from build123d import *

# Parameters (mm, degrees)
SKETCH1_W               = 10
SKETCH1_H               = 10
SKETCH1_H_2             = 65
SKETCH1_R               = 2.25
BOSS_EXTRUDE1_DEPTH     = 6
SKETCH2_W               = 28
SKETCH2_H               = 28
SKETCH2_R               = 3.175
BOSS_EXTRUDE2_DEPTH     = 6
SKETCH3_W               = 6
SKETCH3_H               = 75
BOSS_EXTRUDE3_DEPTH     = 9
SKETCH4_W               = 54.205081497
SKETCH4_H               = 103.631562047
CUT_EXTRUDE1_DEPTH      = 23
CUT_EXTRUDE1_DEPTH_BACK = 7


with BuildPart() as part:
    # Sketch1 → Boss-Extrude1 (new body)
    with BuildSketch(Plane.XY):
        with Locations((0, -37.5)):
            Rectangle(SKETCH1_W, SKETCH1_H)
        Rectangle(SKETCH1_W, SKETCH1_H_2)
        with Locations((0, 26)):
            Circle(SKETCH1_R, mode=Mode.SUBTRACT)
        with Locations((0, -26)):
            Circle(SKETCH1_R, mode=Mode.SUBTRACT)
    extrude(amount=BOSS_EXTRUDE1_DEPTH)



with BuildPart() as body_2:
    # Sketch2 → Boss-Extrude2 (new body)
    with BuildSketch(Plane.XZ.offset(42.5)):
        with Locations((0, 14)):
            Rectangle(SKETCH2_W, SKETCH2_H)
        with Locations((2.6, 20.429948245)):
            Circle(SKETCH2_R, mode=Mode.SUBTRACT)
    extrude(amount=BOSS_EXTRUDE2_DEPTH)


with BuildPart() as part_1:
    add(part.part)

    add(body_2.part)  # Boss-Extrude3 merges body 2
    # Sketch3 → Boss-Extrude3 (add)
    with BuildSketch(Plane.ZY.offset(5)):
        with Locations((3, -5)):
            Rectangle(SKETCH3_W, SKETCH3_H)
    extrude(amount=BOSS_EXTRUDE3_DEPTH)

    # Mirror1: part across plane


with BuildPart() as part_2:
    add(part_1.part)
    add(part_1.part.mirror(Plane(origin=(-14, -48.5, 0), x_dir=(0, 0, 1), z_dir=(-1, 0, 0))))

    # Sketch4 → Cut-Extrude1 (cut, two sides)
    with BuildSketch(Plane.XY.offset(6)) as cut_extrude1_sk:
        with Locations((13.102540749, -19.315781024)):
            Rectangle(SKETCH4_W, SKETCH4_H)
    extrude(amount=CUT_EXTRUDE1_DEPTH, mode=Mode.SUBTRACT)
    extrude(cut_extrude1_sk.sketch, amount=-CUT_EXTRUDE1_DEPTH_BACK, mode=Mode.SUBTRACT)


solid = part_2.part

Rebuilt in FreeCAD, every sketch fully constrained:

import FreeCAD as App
import Part
import Sketcher

doc = App.newDocument("Part")
body = doc.addObject("PartDesign::Body", "Body")

sketch1 = body.newObject("Sketcher::SketchObject", "Sketch")
sketch1.AttachmentSupport = (doc.getObject("XY_Plane"), [""])
sketch1.MapMode = "FlatFace"
sketch1.addGeometry(Part.LineSegment(App.Vector(-5, -42.5, 0), App.Vector(5, -42.5, 0)), False)
sketch1.addGeometry(Part.LineSegment(App.Vector(5, -42.5, 0), App.Vector(5, 32.5, 0)), False)
sketch1.addGeometry(Part.LineSegment(App.Vector(5, 32.5, 0), App.Vector(-5, 32.5, 0)), False)
sketch1.addGeometry(Part.LineSegment(App.Vector(-5, 32.5, 0), App.Vector(-5, -42.5, 0)), False)
sketch1.addGeometry(Part.Circle(App.Vector(0, -26, 0), App.Vector(0, 0, 1), 2.2), False)
sketch1.addGeometry(Part.Circle(App.Vector(0, 26, 0), App.Vector(0, 0, 1), 2.2), False)
sketch1.addConstraint(Sketcher.Constraint("Coincident", 0, 2, 1, 1))
sketch1.addConstraint(Sketcher.Constraint("Coincident", 1, 2, 2, 1))
sketch1.addConstraint(Sketcher.Constraint("Coincident", 2, 2, 3, 1))
sketch1.addConstraint(Sketcher.Constraint("Coincident", 3, 2, 0, 1))
sketch1.addConstraint(Sketcher.Constraint("Horizontal", 0))
sketch1.addConstraint(Sketcher.Constraint("Vertical", 1))
sketch1.addConstraint(Sketcher.Constraint("Horizontal", 2))
sketch1.addConstraint(Sketcher.Constraint("Vertical", 3))
sketch1.addConstraint(Sketcher.Constraint("Equal", 4, 5))
sketch1.addConstraint(Sketcher.Constraint("Symmetric", 4, 3, 5, 3, -1, 1))
sketch1.addConstraint(Sketcher.Constraint("PointOnObject", 4, 3, -2))
sketch1.addConstraint(Sketcher.Constraint("Diameter", 4, 4.5))
sketch1.addConstraint(Sketcher.Constraint("DistanceX", 0, 1, 0, 2, 10.0))
sketch1.addConstraint(Sketcher.Constraint("DistanceY", 1, 1, 1, 2, 75.0))
sketch1.addConstraint(Sketcher.Constraint("DistanceY", 4, 3, -1, 1, 26.0))
sketch1.addConstraint(Sketcher.Constraint("DistanceX", -1, 1, 0, 2, 5.0))
sketch1.addConstraint(Sketcher.Constraint("DistanceY", 0, 2, -1, 1, 42.5))
pad1 = body.newObject("PartDesign::Pad", "Pad")
pad1.Profile = sketch1
pad1.Length = 6
body2 = doc.addObject("PartDesign::Body", "Body001")

sketch2 = body2.newObject("Sketcher::SketchObject", "Sketch001")
sketch2.AttachmentSupport = (doc.getObject("XZ_Plane001"), [""])
sketch2.MapMode = "FlatFace"
sketch2.AttachmentOffset = App.Placement(App.Vector(0, 0, 42.5), App.Rotation())
sketch2.addGeometry(Part.LineSegment(App.Vector(-14, 28, 0), App.Vector(-14, 0, 0)), False)
sketch2.addGeometry(Part.LineSegment(App.Vector(-14, 0, 0), App.Vector(14, 0, 0)), False)
sketch2.addGeometry(Part.LineSegment(App.Vector(14, 0, 0), App.Vector(14, 28, 0)), False)
sketch2.addGeometry(Part.LineSegment(App.Vector(14, 28, 0), App.Vector(-14, 28, 0)), False)
sketch2.addGeometry(Part.Circle(App.Vector(2.6, 20.4, 0), App.Vector(0, 0, 1), 3.2), False)
sketch2.addConstraint(Sketcher.Constraint("Coincident", 0, 2, 1, 1))
sketch2.addConstraint(Sketcher.Constraint("Coincident", 1, 2, 2, 1))
sketch2.addConstraint(Sketcher.Constraint("Coincident", 2, 2, 3, 1))
sketch2.addConstraint(Sketcher.Constraint("Coincident", 3, 2, 0, 1))
sketch2.addConstraint(Sketcher.Constraint("Vertical", 0))
sketch2.addConstraint(Sketcher.Constraint("Horizontal", 1))
sketch2.addConstraint(Sketcher.Constraint("Vertical", 2))
sketch2.addConstraint(Sketcher.Constraint("Horizontal", 3))
sketch2.addConstraint(Sketcher.Constraint("Symmetric", 0, 2, 1, 2, -1, 1))
sketch2.addConstraint(Sketcher.Constraint("Equal", 3, 0))
sketch2.addConstraint(Sketcher.Constraint("Diameter", 4, 6.35))
sketch2.addConstraint(Sketcher.Constraint("DistanceX", 1, 1, 1, 2, 28.0))
sketch2.addConstraint(Sketcher.Constraint("DistanceX", -1, 1, 4, 3, 2.6))
sketch2.addConstraint(Sketcher.Constraint("DistanceY", -1, 1, 4, 3, 20.429948))
pad2 = body2.newObject("PartDesign::Pad", "Pad001")
pad2.Profile = sketch2
pad2.Length = 6
doc.recompute()

boolean = body.newObject("PartDesign::Boolean", "Boolean")
boolean.Type = "Fuse"
boolean.addObjects([body2])

sketch3 = body.newObject("Sketcher::SketchObject", "Sketch002")
sketch3.AttachmentSupport = (doc.getObject("YZ_Plane"), [""])
sketch3.MapMode = "FlatFace"
sketch3.AttachmentOffset = App.Placement(App.Vector(0, 0, -5), App.Rotation())
sketch3.addGeometry(Part.LineSegment(App.Vector(32, 0, 0), App.Vector(-42, 0, 0)), False)
sketch3.addGeometry(Part.LineSegment(App.Vector(-42, 0, 0), App.Vector(-42, 6, 0)), False)
sketch3.addGeometry(Part.LineSegment(App.Vector(-42, 6, 0), App.Vector(32, 6, 0)), False)
sketch3.addGeometry(Part.LineSegment(App.Vector(32, 6, 0), App.Vector(32, 0, 0)), False)
sketch3.addConstraint(Sketcher.Constraint("Coincident", 0, 2, 1, 1))
sketch3.addConstraint(Sketcher.Constraint("Coincident", 1, 2, 2, 1))
sketch3.addConstraint(Sketcher.Constraint("Coincident", 2, 2, 3, 1))
sketch3.addConstraint(Sketcher.Constraint("Coincident", 3, 2, 0, 1))
sketch3.addConstraint(Sketcher.Constraint("Horizontal", 0))
sketch3.addConstraint(Sketcher.Constraint("Vertical", 1))
sketch3.addConstraint(Sketcher.Constraint("Horizontal", 2))
sketch3.addConstraint(Sketcher.Constraint("Vertical", 3))
sketch3.addConstraint(Sketcher.Constraint("PointOnObject", 0, 2, -1))
sketch3.addConstraint(Sketcher.Constraint("DistanceX", 0, 2, 0, 1, 75.0))
sketch3.addConstraint(Sketcher.Constraint("DistanceY", 1, 1, 1, 2, 6.0))
sketch3.addConstraint(Sketcher.Constraint("DistanceX", 0, 2, -1, 1, 42.5))
pad3 = body.newObject("PartDesign::Pad", "Pad002")
pad3.Profile = sketch3
pad3.Length = 9
pad3.Reversed = True
body3 = doc.addObject("PartDesign::Body", "Body002")
doc.recompute()

body3.BaseFeature = body
doc.recompute()

mirroring = doc.addObject("Part::Mirroring", "Mirroring")
mirroring.Source = body
mirroring.Base = App.Vector(-14, -48.5, 0)
mirroring.Normal = App.Vector(-1, 0, 0)
body4 = doc.addObject("PartDesign::Body", "Body003")
body4.BaseFeature = mirroring
boolean2 = body3.newObject("PartDesign::Boolean", "Boolean001")
boolean2.Type = "Fuse"
boolean2.addObjects([body4])
doc.recompute()

sketch4 = body3.newObject("Sketcher::SketchObject", "Sketch003")
sketch4.AttachmentSupport = (doc.getObject("XY_Plane002"), [""])
sketch4.MapMode = "FlatFace"
sketch4.AttachmentOffset = App.Placement(App.Vector(0, 0, 6), App.Rotation())
sketch4.addGeometry(Part.LineSegment(App.Vector(-14, 32, 0), App.Vector(-14, -71, 0)), False)
sketch4.addGeometry(Part.LineSegment(App.Vector(-14, -71, 0), App.Vector(40, -71, 0)), False)
sketch4.addGeometry(Part.LineSegment(App.Vector(40, -71, 0), App.Vector(40, 32, 0)), False)
sketch4.addGeometry(Part.LineSegment(App.Vector(40, 32, 0), App.Vector(-14, 32, 0)), False)
sketch4.addConstraint(Sketcher.Constraint("Coincident", 0, 2, 1, 1))
sketch4.addConstraint(Sketcher.Constraint("Coincident", 1, 2, 2, 1))
sketch4.addConstraint(Sketcher.Constraint("Coincident", 2, 2, 3, 1))
sketch4.addConstraint(Sketcher.Constraint("Coincident", 3, 2, 0, 1))
sketch4.addConstraint(Sketcher.Constraint("Vertical", 0))
sketch4.addConstraint(Sketcher.Constraint("Horizontal", 1))
sketch4.addConstraint(Sketcher.Constraint("Vertical", 2))
sketch4.addConstraint(Sketcher.Constraint("Horizontal", 3))
sketch4.addConstraint(Sketcher.Constraint("DistanceX", 0, 2, -1, 1, 14.0))
sketch4.addConstraint(Sketcher.Constraint("DistanceY", -1, 1, 2, 2, 32.5))
sketch4.addConstraint(Sketcher.Constraint("DistanceX", 1, 1, 1, 2, 54.205081))
sketch4.addConstraint(Sketcher.Constraint("DistanceY", 0, 2, 0, 1, 103.631562))
pocket1 = body3.newObject("PartDesign::Pocket", "Pocket")
pocket1.Profile = sketch4
pocket1.Type = "ThroughAll"
pocket1.Midplane = True
mirroring.Visibility = False

doc.recompute()
